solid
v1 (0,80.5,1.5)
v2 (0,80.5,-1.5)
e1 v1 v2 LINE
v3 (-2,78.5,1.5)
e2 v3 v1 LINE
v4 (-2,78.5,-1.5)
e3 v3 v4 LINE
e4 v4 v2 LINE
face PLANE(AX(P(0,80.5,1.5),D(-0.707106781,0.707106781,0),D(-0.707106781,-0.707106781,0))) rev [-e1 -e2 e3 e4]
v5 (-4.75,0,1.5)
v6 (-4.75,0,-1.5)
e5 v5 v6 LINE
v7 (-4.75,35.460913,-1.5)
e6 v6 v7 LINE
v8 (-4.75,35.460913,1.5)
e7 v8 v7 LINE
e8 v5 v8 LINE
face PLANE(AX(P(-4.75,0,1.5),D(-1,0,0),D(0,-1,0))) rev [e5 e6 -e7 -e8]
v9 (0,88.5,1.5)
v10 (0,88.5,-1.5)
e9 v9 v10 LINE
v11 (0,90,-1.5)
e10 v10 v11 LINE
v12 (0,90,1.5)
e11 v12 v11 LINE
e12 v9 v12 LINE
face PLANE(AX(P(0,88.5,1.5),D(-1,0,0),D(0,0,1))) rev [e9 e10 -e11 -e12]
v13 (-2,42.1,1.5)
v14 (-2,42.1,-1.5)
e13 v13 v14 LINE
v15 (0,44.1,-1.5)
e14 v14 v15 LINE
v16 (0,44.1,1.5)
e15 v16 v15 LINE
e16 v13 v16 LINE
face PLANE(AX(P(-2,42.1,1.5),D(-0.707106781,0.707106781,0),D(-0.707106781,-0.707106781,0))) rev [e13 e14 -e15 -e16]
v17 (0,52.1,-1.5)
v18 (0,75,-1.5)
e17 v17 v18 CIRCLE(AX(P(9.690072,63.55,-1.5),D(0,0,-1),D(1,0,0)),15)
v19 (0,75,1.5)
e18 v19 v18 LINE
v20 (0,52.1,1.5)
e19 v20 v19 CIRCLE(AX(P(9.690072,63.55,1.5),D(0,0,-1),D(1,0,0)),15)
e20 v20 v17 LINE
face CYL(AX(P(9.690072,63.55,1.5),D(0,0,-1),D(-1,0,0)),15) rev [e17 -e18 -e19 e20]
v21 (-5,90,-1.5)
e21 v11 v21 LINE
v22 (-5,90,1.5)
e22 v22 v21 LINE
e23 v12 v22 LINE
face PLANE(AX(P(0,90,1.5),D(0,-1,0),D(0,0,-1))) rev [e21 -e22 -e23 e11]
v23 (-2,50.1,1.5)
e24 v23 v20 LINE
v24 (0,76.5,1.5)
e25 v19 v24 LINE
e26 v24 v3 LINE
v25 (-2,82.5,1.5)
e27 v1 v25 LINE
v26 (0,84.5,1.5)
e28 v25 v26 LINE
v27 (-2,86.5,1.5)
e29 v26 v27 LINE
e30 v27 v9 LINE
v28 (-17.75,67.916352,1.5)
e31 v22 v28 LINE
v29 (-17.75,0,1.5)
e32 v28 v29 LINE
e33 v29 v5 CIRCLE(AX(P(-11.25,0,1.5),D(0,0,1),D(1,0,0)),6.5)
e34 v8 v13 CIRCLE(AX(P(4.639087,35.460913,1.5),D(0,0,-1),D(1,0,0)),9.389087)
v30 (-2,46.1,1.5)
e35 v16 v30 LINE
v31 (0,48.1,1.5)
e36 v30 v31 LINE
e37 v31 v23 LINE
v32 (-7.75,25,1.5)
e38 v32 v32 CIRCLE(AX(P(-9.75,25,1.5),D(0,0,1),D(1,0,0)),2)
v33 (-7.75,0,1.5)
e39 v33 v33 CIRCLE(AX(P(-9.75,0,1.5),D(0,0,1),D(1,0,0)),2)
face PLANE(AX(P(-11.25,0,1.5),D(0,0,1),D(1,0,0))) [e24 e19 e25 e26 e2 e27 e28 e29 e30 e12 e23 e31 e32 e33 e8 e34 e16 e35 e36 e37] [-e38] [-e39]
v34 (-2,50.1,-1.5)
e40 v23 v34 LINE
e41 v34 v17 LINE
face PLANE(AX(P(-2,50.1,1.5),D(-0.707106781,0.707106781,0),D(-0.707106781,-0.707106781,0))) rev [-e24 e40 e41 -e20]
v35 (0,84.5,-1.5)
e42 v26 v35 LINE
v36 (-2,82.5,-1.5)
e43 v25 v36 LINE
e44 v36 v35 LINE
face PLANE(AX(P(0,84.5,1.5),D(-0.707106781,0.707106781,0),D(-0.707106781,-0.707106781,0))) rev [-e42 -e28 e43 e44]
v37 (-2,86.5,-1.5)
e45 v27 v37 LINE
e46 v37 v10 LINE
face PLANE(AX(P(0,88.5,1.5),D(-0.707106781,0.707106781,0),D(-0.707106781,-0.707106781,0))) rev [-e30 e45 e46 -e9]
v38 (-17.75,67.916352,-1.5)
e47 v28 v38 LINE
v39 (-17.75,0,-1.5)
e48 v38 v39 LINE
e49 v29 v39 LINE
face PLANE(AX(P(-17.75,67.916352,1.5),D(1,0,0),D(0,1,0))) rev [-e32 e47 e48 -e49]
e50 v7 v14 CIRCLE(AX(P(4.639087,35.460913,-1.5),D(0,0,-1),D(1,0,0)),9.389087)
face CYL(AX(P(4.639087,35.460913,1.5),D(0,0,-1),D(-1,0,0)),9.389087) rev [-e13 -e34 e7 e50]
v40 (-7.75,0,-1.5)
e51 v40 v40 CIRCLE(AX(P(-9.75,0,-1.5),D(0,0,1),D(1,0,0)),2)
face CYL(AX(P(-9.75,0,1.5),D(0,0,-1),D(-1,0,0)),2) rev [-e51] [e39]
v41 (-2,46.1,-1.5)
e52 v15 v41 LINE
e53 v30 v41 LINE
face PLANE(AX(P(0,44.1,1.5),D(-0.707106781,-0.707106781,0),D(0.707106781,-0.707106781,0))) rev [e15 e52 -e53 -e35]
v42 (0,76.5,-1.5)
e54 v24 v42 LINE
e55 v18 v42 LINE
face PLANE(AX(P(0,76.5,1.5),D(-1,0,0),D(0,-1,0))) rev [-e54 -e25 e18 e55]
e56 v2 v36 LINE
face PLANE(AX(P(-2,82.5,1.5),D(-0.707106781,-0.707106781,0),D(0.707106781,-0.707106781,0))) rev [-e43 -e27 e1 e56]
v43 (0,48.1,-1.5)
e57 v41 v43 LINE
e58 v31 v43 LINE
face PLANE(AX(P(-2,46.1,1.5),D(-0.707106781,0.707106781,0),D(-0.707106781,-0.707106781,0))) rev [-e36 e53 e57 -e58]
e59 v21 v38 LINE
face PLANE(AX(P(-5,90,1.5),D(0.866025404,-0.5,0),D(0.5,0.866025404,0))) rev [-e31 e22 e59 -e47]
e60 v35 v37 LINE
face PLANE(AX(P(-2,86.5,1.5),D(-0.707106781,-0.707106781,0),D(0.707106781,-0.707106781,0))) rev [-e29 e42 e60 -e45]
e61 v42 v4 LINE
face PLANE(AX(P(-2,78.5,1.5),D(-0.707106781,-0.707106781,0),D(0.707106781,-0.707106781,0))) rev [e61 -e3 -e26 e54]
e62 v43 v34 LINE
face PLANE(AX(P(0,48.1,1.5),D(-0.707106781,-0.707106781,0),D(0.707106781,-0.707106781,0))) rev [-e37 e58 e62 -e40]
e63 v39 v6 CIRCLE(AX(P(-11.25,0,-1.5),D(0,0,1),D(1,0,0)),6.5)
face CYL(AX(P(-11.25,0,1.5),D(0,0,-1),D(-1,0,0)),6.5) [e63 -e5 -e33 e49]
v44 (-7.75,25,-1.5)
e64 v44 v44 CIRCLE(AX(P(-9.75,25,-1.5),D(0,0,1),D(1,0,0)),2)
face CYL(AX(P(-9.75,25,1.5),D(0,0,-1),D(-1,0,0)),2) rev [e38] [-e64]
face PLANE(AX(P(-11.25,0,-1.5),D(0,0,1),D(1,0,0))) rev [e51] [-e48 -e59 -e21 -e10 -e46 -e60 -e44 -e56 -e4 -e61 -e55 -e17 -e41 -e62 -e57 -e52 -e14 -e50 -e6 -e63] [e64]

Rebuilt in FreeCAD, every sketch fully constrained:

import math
import FreeCAD as App
import Part
import Sketcher

V = App.Vector
Q = App.Units.Quantity

doc = App.newDocument("Part")
body = doc.addObject("PartDesign::Body", "Body")

# Sketch on XY plane
sketch1 = doc.addObject("Sketcher::SketchObject", "Sketch")
body.addObject(sketch1)
sketch1.AttachmentSupport = (doc.XY_Plane, [""])
sketch1.MapMode = "FlatFace"
sketch1.addGeometry([
    Part.LineSegment(V(-2, 86.5, 0), V(0, 88.5, 0)),  # 0
    Part.LineSegment(V(0, 88.5, 0), V(0, 90, 0)),  # 1
    Part.LineSegment(V(0, 90, 0), V(-5, 90, 0)),  # 2
    Part.LineSegment(V(-5, 90, 0), V(-17.75, 67.916352, 0)),  # 3
    Part.LineSegment(V(-17.75, 67.916352, 0), V(-17.75, 0, 0)),  # 4
    Part.ArcOfCircle(Part.Circle(V(-11.25, 0, 0), V(0, 0, 1), 6.5), math.radians(180), math.radians(360)),  # 5
    Part.LineSegment(V(-4.75, 0, 0), V(-4.75, 35.460913, 0)),  # 6
    Part.ArcOfCircle(Part.Circle(V(4.639087, 35.460913, 0), V(0, 0, 1), 9.389087), math.radians(135), math.radians(180)),  # 7
    Part.LineSegment(V(-2, 42.1, 0), V(0, 44.1, 0)),  # 8
    Part.LineSegment(V(0, 44.1, 0), V(-2, 46.1, 0)),  # 9
    Part.LineSegment(V(-2, 46.1, 0), V(0, 48.1, 0)),  # 10
    Part.LineSegment(V(0, 48.1, 0), V(-2, 50.1, 0)),  # 11
    Part.LineSegment(V(-2, 50.1, 0), V(0, 52.1, 0)),  # 12
    Part.ArcOfCircle(Part.Circle(V(9.690072, 63.55, 0), V(0, 0, 1), 15), math.radians(130.241055), math.radians(229.758945)),  # 13
    Part.LineSegment(V(0, 75, 0), V(0, 76.5, 0)),  # 14
    Part.LineSegment(V(0, 76.5, 0), V(-2, 78.5, 0)),  # 15
    Part.LineSegment(V(-2, 78.5, 0), V(0, 80.5, 0)),  # 16
    Part.LineSegment(V(0, 80.5, 0), V(-2, 82.5, 0)),  # 17
    Part.LineSegment(V(-2, 82.5, 0), V(0, 84.5, 0)),  # 18
    Part.LineSegment(V(0, 84.5, 0), V(-2, 86.5, 0)),  # 19
    Part.Circle(V(-9.75, 0, 0), V(0, 0, 1), 2),  # 20
    Part.Circle(V(-9.75, 25, 0), V(0, 0, 1), 2),  # 21
], False)
sketch1.addConstraint([
    Sketcher.Constraint("Coincident", 0, 2, 1, 1),
    Sketcher.Constraint("Coincident", 1, 2, 2, 1),
    Sketcher.Constraint("Coincident", 2, 2, 3, 1),
    Sketcher.Constraint("Coincident", 3, 2, 4, 1),
    Sketcher.Constraint("Tangent", 4, 2, 5, 1),
    Sketcher.Constraint("Tangent", 5, 2, 6, 1),
    Sketcher.Constraint("Tangent", 6, 2, 7, 2),
    Sketcher.Constraint("Tangent", 7, 1, 8, 1),
    Sketcher.Constraint("Coincident", 8, 2, 9, 1),
    Sketcher.Constraint("Coincident", 9, 2, 10, 1),
    Sketcher.Constraint("Coincident", 10, 2, 11, 1),
    Sketcher.Constraint("Coincident", 11, 2, 12, 1),
    Sketcher.Constraint("Coincident", 12, 2, 13, 2),
    Sketcher.Constraint("Coincident", 13, 1, 14, 1),
    Sketcher.Constraint("Coincident", 14, 2, 15, 1),
    Sketcher.Constraint("Coincident", 15, 2, 16, 1),
    Sketcher.Constraint("Coincident", 16, 2, 17, 1),
    Sketcher.Constraint("Coincident", 17, 2, 18, 1),
    Sketcher.Constraint("Coincident", 18, 2, 19, 1),
    Sketcher.Constraint("Coincident", 19, 2, 0, 1),
    Sketcher.Constraint("Vertical", 1),
    Sketcher.Constraint("Horizontal", 2),
    Sketcher.Constraint("Vertical", 4),
    Sketcher.Constraint("Vertical", 6),
    Sketcher.Constraint("Vertical", 14),
    Sketcher.Constraint("Equal", 20, 21),
    Sketcher.Constraint("PointOnObject", 5, 3, -1),
    Sketcher.Constraint("PointOnObject", 20, 3, -1),
    Sketcher.Constraint("PointOnObject", 0, 2, -2),
    Sketcher.Constraint("PointOnObject", 8, 2, -2),
    Sketcher.Constraint("PointOnObject", 10, 2, -2),
    Sketcher.Constraint("PointOnObject", 12, 2, -2),
    Sketcher.Constraint("PointOnObject", 13, 1, -2),
    Sketcher.Constraint("PointOnObject", 16, 2, -2),
    Sketcher.Constraint("PointOnObject", 18, 2, -2),
    Sketcher.Constraint("Parallel", 0, 8),
    Sketcher.Constraint("Perpendicular", 8, 9),
    Sketcher.Constraint("Perpendicular", 9, 10),
    Sketcher.Constraint("Perpendicular", 10, 11),
    Sketcher.Constraint("Perpendicular", 11, 12),
    Sketcher.Constraint("Perpendicular", 12, 15),
    Sketcher.Constraint("Perpendicular", 15, 16),
    Sketcher.Constraint("Perpendicular", 16, 17),
    Sketcher.Constraint("Perpendicular", 17, 18),
    Sketcher.Constraint("Perpendicular", 18, 19),
    Sketcher.Constraint("Vertical", 20, 3, 21, 3),
    Sketcher.Constraint("Vertical", 7, 1, 9, 2),
    Sketcher.Constraint("Vertical", 9, 2, 11, 2),
    Sketcher.Constraint("Vertical", 11, 2, 15, 2),
    Sketcher.Constraint("Vertical", 15, 2, 17, 2),
    Sketcher.Constraint("Vertical", 17, 2, 19, 2),
    Sketcher.Constraint("Equal", 1, 14),
    Sketcher.Constraint("Equal", 8, 9),
    Sketcher.Constraint("Diameter", 20, Q("4 mm")),
    Sketcher.Constraint("Radius", 13, Q("15 mm")),
    Sketcher.Constraint("Radius", 5, Q("6.5 mm")),
    Sketcher.Constraint("DistanceX", 2, 2, 2, 1, Q("5 mm")),
    Sketcher.Constraint("Angle", 3, Q("-120 deg")),
    Sketcher.Constraint("DistanceY", 1, 1, 1, 2, Q("1.5 mm")),
    Sketcher.Constraint("DistanceY", -1, 1, 21, 3, Q("25 mm")),
    Sketcher.Constraint("DistanceY", -1, 1, 1, 2, Q("90 mm")),
    Sketcher.Constraint("DistanceX", 7, 1, -1, 1, Q("2 mm")),
    Sketcher.Constraint("DistanceX", 4, 2, 20, 3, Q("8 mm")),
    Sketcher.Constraint("Distance", 3, Q("25.5 mm")),
    Sketcher.Constraint("DistanceY", -1, 1, 7, 1, Q("42.1 mm")),
])
pad1 = doc.addObject("PartDesign::Pad", "Pad")
body.addObject(pad1)
pad1.Profile = sketch1
pad1.Length = 3
pad1.Midplane = True

doc.recompute()
